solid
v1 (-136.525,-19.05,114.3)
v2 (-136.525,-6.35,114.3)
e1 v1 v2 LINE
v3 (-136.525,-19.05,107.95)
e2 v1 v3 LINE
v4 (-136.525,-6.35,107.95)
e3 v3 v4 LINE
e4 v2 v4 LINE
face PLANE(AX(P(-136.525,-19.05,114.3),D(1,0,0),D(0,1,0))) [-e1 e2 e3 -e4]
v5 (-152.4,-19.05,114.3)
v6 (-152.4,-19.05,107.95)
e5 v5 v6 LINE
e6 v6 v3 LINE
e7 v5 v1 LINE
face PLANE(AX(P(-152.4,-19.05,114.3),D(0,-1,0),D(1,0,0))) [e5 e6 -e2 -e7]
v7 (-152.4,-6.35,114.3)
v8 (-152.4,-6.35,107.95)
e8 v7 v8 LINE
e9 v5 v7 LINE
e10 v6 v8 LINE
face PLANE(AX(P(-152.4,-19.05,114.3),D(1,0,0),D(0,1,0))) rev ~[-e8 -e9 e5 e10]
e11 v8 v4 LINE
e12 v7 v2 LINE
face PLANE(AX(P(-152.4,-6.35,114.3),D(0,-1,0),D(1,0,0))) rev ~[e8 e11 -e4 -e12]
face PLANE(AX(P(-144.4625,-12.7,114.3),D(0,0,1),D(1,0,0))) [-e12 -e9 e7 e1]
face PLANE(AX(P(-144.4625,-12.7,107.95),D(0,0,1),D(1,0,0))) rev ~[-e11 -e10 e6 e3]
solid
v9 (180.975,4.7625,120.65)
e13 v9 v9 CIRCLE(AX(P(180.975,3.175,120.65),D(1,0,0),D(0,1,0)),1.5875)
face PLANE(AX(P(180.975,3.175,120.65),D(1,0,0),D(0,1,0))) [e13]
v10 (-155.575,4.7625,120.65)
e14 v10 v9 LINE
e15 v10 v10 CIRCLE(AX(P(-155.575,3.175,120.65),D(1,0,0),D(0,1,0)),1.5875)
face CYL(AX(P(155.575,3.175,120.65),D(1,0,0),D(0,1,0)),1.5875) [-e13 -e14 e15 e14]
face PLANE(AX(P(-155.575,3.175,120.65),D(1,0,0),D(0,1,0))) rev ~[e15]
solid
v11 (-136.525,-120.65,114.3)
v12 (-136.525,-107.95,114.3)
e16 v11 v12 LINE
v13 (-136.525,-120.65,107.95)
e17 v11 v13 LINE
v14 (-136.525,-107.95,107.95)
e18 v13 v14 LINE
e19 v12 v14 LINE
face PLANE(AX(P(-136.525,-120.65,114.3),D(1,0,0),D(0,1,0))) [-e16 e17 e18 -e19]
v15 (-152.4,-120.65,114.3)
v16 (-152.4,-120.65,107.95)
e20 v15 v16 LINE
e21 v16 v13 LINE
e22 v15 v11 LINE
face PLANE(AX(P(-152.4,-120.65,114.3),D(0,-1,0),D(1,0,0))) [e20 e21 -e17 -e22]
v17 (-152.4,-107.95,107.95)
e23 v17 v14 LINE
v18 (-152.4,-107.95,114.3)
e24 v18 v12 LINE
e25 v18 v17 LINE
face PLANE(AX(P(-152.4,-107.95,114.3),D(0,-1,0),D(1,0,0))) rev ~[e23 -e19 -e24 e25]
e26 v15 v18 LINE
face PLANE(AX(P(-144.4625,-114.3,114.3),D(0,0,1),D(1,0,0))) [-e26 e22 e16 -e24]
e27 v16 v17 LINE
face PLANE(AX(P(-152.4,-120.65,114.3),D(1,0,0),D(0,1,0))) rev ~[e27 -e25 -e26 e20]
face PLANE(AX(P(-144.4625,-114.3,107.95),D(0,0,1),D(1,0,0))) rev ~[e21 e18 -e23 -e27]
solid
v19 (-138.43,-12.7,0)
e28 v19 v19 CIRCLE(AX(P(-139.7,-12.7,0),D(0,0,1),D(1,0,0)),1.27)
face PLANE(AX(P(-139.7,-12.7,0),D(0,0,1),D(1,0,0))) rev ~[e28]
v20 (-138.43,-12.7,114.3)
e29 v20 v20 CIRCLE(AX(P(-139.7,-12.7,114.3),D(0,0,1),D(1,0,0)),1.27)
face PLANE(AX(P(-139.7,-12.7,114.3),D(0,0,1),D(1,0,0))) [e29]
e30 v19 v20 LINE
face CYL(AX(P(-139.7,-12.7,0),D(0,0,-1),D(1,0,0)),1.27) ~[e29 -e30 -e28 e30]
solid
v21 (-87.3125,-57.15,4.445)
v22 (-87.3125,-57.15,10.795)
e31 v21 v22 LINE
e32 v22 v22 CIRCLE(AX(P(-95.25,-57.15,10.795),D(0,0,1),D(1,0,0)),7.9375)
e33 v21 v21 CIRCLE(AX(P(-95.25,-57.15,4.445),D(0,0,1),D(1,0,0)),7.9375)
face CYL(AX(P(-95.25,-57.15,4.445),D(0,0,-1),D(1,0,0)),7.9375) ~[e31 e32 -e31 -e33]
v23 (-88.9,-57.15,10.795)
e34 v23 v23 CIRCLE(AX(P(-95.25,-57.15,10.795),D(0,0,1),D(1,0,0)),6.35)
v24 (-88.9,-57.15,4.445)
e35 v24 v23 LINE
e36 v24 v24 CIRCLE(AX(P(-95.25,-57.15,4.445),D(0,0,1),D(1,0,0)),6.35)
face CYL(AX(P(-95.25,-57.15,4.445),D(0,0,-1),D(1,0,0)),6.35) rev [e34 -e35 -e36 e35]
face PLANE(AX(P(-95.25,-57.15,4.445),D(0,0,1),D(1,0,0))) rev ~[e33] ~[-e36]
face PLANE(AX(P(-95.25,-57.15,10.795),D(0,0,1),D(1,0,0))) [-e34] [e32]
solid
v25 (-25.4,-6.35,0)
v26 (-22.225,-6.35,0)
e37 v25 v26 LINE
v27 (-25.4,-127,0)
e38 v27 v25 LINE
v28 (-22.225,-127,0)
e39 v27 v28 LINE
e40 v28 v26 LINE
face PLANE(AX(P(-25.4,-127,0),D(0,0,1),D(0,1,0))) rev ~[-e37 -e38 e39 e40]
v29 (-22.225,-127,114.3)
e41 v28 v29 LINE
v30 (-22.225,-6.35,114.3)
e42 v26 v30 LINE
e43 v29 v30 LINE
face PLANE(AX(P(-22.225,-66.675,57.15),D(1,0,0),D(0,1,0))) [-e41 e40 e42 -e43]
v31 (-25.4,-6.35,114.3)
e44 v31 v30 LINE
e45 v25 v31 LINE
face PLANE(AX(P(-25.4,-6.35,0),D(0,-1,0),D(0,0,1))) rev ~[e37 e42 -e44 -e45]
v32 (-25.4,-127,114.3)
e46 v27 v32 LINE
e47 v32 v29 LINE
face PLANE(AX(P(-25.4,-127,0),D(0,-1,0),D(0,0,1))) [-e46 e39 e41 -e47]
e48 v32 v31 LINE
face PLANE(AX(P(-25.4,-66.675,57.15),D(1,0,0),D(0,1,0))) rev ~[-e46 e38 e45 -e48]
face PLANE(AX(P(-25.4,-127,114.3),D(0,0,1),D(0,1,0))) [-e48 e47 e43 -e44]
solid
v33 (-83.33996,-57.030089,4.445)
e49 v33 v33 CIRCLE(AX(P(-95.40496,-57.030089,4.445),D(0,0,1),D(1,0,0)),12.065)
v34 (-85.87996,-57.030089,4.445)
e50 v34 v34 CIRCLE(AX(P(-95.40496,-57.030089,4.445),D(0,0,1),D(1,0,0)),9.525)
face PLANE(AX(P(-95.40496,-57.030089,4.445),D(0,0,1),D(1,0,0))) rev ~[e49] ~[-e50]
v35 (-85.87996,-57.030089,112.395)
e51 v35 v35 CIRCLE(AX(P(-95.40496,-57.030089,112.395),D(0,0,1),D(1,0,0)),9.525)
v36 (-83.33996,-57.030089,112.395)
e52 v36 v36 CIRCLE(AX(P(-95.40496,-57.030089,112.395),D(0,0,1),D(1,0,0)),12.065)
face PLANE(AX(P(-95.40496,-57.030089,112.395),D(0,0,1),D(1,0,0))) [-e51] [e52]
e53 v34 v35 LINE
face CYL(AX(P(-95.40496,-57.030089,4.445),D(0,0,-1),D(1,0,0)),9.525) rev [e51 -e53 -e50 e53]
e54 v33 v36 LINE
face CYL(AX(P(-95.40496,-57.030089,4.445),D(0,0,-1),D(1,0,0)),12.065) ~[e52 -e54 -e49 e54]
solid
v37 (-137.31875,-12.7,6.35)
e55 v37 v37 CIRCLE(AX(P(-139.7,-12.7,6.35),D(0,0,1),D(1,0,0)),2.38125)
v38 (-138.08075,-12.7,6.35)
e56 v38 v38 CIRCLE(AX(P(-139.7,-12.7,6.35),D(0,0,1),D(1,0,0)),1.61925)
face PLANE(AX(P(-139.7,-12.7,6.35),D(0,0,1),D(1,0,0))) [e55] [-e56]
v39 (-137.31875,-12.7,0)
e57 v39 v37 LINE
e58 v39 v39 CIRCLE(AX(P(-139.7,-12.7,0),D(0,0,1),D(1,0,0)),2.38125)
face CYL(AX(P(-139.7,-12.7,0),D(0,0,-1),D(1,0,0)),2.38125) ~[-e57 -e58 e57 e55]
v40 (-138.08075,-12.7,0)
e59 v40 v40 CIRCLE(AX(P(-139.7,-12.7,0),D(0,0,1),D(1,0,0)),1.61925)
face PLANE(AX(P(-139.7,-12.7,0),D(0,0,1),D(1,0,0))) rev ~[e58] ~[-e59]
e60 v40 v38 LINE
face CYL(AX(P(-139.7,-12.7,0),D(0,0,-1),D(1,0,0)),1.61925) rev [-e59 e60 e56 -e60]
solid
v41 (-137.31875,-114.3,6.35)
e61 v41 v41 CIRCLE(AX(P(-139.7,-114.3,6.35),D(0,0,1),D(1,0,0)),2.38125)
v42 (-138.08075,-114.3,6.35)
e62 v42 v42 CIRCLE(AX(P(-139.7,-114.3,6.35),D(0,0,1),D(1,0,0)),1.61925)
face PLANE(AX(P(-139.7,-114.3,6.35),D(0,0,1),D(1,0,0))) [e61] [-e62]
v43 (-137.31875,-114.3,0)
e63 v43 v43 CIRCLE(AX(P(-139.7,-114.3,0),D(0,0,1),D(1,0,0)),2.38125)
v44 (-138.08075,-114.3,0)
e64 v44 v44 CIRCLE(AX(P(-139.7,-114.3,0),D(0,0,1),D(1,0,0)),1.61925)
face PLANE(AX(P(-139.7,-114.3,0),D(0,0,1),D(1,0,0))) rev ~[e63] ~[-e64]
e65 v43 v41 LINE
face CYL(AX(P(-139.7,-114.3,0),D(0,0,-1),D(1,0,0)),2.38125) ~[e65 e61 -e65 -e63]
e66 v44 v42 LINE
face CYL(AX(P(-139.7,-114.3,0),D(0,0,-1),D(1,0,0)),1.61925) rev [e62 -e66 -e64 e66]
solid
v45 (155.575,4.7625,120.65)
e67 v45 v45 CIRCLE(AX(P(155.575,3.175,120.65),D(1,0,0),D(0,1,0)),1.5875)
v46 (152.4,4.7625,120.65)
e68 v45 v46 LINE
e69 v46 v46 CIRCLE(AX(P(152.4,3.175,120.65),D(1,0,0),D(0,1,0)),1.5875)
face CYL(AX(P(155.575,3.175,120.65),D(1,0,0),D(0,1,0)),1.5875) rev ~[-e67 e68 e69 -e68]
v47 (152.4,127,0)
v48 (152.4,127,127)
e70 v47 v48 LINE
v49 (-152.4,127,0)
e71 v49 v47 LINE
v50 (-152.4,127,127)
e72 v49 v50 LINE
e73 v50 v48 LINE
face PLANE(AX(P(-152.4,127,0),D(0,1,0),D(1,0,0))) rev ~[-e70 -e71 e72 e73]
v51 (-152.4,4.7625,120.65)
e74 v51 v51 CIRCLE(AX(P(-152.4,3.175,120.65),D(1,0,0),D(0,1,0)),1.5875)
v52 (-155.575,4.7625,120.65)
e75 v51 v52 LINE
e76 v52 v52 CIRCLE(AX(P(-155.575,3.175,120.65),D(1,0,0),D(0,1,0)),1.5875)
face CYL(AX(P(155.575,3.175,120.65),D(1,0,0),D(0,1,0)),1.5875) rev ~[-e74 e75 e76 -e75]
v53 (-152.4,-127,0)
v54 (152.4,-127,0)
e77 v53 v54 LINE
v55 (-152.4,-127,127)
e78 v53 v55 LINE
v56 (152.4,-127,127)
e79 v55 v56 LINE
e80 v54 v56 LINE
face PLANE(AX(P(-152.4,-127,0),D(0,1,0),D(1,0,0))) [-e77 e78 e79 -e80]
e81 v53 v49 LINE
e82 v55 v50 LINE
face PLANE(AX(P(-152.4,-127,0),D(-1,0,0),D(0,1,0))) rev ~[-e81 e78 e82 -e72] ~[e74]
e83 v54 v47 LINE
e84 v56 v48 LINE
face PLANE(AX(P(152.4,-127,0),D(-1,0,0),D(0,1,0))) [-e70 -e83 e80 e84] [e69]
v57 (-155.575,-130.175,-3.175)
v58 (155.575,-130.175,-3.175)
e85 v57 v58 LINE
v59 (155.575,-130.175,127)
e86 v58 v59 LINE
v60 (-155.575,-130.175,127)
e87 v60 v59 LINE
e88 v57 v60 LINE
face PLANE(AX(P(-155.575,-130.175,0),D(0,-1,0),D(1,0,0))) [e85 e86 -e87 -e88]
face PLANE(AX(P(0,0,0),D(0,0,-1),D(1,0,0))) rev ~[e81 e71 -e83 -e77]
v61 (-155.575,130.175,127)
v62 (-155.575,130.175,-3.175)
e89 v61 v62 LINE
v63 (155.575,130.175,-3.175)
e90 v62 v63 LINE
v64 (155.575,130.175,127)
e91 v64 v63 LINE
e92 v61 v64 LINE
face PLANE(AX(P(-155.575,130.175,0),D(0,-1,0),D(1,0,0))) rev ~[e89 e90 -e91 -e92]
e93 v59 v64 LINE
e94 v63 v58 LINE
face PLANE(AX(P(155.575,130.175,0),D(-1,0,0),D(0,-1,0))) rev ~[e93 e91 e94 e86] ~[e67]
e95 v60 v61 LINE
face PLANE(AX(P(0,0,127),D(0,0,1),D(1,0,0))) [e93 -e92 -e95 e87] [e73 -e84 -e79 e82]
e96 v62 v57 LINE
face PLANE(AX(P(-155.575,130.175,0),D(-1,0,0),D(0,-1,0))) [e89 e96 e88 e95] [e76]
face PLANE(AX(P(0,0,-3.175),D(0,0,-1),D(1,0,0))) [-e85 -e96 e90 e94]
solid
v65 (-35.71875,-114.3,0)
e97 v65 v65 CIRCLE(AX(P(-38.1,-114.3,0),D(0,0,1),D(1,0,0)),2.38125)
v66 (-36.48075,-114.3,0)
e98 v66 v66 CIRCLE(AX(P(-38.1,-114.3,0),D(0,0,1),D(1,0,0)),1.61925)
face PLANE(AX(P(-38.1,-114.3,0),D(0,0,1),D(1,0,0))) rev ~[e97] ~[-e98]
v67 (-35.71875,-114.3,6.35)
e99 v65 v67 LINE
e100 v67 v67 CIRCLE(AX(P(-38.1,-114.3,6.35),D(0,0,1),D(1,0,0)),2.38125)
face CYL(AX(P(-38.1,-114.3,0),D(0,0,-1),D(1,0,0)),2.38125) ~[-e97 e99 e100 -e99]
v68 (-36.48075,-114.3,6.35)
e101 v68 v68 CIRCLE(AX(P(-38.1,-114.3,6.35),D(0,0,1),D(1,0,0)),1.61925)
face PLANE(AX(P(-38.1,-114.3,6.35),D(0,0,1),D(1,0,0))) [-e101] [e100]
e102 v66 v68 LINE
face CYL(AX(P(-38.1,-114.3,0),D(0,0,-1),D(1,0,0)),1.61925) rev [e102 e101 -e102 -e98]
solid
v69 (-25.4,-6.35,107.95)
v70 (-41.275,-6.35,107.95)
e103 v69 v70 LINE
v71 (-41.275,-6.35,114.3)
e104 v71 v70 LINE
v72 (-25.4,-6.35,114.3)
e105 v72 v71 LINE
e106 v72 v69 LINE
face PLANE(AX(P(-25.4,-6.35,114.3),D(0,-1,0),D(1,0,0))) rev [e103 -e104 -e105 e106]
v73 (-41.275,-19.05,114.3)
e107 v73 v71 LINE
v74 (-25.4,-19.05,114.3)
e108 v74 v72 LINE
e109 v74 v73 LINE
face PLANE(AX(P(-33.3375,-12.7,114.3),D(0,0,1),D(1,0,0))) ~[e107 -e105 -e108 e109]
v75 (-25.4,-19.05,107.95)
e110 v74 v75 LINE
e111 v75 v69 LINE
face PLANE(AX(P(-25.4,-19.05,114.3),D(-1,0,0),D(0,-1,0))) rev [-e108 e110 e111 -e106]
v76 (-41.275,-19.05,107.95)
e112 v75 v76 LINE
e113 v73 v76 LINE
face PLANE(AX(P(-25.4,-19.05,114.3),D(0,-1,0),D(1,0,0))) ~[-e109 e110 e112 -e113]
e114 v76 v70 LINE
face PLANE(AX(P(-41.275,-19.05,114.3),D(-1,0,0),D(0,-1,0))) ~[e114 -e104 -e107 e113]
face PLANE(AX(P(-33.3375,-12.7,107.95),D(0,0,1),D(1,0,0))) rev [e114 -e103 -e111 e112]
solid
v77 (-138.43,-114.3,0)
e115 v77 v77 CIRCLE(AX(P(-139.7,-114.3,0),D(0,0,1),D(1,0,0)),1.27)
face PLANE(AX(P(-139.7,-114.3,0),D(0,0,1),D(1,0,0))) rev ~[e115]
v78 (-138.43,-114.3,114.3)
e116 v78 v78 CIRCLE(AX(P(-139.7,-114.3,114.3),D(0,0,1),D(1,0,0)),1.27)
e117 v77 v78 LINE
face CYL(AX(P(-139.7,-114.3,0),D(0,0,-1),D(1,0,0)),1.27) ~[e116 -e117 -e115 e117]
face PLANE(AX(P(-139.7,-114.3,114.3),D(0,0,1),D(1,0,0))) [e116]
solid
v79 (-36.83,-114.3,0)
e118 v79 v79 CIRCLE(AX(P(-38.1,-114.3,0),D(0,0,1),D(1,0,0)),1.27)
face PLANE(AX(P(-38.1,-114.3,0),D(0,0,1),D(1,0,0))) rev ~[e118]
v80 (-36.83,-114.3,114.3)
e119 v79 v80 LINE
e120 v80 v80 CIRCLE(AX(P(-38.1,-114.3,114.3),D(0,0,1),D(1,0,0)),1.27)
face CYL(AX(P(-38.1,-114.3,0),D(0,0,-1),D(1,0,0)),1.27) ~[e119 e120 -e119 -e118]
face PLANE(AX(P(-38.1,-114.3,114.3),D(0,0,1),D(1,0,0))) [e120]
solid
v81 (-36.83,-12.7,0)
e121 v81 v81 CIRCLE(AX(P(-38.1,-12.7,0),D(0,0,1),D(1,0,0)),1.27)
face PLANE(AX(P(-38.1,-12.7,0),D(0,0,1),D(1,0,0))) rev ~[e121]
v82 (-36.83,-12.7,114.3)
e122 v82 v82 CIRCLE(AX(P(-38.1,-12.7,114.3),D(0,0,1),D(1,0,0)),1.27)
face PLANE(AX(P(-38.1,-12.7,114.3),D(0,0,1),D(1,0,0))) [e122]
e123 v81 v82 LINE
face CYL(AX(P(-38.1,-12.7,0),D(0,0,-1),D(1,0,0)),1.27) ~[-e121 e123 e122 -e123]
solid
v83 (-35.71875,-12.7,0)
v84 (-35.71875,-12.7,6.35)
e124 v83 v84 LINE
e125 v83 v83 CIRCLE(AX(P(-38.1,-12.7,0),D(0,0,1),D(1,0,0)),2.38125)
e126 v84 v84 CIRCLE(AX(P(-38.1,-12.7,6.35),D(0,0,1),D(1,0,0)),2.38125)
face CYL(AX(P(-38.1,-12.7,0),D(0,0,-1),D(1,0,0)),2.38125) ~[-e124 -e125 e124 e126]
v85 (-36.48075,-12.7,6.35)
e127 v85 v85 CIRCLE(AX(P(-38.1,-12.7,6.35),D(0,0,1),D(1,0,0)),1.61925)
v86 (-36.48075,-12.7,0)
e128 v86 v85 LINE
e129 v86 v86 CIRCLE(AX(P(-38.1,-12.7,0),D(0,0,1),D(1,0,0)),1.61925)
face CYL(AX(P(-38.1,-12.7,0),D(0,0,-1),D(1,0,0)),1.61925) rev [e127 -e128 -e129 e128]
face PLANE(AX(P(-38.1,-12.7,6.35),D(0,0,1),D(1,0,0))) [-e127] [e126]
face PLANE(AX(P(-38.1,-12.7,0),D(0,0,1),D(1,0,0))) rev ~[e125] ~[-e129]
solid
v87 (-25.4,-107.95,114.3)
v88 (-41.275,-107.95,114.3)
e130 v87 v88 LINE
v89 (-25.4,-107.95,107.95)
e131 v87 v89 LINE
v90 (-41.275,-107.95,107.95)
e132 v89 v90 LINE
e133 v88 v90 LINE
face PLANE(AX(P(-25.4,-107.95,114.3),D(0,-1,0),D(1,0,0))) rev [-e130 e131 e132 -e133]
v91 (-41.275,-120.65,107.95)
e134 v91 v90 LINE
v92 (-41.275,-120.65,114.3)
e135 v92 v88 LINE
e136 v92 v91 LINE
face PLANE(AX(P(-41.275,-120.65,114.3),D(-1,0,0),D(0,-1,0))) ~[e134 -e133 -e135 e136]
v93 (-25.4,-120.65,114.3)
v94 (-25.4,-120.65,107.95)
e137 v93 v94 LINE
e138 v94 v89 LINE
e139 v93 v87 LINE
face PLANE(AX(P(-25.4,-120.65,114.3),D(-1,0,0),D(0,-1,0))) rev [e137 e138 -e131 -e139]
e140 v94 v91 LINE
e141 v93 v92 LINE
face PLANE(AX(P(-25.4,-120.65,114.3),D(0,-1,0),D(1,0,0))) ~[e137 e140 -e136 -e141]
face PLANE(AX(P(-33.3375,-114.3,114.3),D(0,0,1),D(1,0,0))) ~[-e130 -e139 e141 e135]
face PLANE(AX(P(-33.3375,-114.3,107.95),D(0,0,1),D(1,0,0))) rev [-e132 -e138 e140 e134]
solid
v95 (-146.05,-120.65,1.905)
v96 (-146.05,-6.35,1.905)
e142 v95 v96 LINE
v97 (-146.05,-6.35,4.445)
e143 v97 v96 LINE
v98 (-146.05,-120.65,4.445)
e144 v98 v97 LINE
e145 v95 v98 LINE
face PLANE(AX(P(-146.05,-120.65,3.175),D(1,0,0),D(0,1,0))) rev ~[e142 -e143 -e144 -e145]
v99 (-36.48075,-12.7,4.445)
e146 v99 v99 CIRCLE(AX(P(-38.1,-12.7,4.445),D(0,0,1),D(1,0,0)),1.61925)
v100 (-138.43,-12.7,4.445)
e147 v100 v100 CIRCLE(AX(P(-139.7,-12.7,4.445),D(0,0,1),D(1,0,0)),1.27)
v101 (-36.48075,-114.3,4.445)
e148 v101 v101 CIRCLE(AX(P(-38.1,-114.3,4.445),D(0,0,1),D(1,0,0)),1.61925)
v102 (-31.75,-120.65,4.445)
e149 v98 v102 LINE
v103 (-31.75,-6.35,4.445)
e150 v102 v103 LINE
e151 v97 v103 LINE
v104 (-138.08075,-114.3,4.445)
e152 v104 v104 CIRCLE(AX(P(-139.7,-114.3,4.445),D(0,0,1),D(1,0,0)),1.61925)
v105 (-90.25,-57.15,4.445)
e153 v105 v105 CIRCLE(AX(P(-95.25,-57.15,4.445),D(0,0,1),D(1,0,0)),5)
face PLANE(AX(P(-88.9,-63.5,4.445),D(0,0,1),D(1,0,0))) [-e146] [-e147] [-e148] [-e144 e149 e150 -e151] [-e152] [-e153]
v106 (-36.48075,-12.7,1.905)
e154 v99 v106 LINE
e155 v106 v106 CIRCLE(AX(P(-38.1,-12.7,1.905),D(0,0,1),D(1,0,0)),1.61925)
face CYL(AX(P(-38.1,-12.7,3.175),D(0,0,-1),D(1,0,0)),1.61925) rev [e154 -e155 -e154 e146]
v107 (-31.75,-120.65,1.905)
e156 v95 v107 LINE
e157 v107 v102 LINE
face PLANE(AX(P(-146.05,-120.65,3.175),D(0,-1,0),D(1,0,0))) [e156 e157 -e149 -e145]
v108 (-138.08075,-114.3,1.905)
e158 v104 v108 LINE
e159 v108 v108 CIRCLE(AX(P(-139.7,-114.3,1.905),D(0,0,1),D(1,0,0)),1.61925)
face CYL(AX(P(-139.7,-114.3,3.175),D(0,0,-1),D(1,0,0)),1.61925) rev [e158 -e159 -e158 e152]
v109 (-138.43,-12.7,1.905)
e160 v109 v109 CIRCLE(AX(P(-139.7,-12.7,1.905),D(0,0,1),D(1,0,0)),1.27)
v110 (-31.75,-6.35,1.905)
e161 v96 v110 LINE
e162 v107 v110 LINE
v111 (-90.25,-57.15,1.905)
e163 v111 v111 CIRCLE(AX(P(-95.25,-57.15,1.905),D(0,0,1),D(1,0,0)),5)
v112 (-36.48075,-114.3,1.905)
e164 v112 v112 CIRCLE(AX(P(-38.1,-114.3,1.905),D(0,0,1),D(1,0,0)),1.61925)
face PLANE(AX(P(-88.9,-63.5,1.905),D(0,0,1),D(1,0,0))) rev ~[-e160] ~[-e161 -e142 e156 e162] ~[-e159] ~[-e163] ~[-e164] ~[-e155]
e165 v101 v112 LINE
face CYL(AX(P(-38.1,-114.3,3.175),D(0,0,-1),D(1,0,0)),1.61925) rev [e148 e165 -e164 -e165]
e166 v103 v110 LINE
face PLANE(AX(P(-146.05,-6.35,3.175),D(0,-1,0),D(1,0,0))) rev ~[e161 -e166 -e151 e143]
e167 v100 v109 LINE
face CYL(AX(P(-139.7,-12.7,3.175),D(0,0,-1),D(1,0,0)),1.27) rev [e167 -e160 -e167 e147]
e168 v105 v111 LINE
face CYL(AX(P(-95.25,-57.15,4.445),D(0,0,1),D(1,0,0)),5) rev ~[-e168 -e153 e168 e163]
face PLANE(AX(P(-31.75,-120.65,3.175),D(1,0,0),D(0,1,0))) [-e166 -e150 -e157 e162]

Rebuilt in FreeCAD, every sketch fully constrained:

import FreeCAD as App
import Part
import Sketcher
from FreeCAD import Vector
Q = App.Units.Quantity

doc = App.newDocument("Part")
body = doc.addObject("PartDesign::Body", "Body")

# Sketch on XY plane
sketch1 = body.newObject("Sketcher::SketchObject", "Sketch")
sketch1.AttachmentSupport = (doc.getObject("XY_Plane"), [""])
sketch1.MapMode = "FlatFace"
sketch1.addGeometry(Part.LineSegment(Vector(-155.575, 130.175, 0), Vector(-155.575, -130.175, 0)), False)
sketch1.addGeometry(Part.LineSegment(Vector(-155.575, -130.175, 0), Vector(155.575, -130.175, 0)), False)
sketch1.addGeometry(Part.LineSegment(Vector(155.575, -130.175, 0), Vector(155.575, 130.175, 0)), False)
sketch1.addGeometry(Part.LineSegment(Vector(155.575, 130.175, 0), Vector(-155.575, 130.175, 0)), False)
sketch1.addGeometry(Part.LineSegment(Vector(152.4, -127, 0), Vector(-152.4, -127, 0)), False)
sketch1.addGeometry(Part.LineSegment(Vector(-152.4, -127, 0), Vector(-152.4, 127, 0)), False)
sketch1.addGeometry(Part.LineSegment(Vector(-152.4, 127, 0), Vector(152.4, 127, 0)), False)
sketch1.addGeometry(Part.LineSegment(Vector(152.4, 127, 0), Vector(152.4, -127, 0)), False)
sketch1.addConstraint(Sketcher.Constraint("Coincident", 0, 2, 1, 1))
sketch1.addConstraint(Sketcher.Constraint("Coincident", 1, 2, 2, 1))
sketch1.addConstraint(Sketcher.Constraint("Coincident", 2, 2, 3, 1))
sketch1.addConstraint(Sketcher.Constraint("Coincident", 3, 2, 0, 1))
sketch1.addConstraint(Sketcher.Constraint("Coincident", 4, 2, 5, 1))
sketch1.addConstraint(Sketcher.Constraint("Coincident", 5, 2, 6, 1))
sketch1.addConstraint(Sketcher.Constraint("Coincident", 6, 2, 7, 1))
sketch1.addConstraint(Sketcher.Constraint("Coincident", 7, 2, 4, 1))
sketch1.addConstraint(Sketcher.Constraint("Vertical", 0))
sketch1.addConstraint(Sketcher.Constraint("Horizontal", 1))
sketch1.addConstraint(Sketcher.Constraint("Vertical", 2))
sketch1.addConstraint(Sketcher.Constraint("Horizontal", 3))
sketch1.addConstraint(Sketcher.Constraint("Horizontal", 4))
sketch1.addConstraint(Sketcher.Constraint("Vertical", 5))
sketch1.addConstraint(Sketcher.Constraint("Horizontal", 6))
sketch1.addConstraint(Sketcher.Constraint("Vertical", 7))
sketch1.addConstraint(Sketcher.Constraint("Symmetric", 0, 2, 2, 2, -1, 1))
sketch1.addConstraint(Sketcher.Constraint("Symmetric", 4, 2, 6, 2, -1, 1))
sketch1.addConstraint(Sketcher.Constraint("DistanceX", 4, 2, 4, 1, Q("12 in")))
sketch1.addConstraint(Sketcher.Constraint("DistanceY", 5, 1, 5, 2, Q("10 in")))
sketch1.addConstraint(Sketcher.Constraint("DistanceX", 1, 1, 1, 2, Q("12.25 in")))
sketch1.addConstraint(Sketcher.Constraint("DistanceY", 0, 2, 0, 1, Q("10.25 in")))
pad1 = body.newObject("PartDesign::Pad", "Pad")
pad1.Profile = sketch1
pad1.Length = Q("5 in")

# Sketch on XY plane
sketch2 = body.newObject("Sketcher::SketchObject", "Sketch001")
sketch2.AttachmentSupport = (doc.getObject("XY_Plane"), [""])
sketch2.MapMode = "FlatFace"
sketch2.addGeometry(Part.LineSegment(Vector(-155.575, -130.175, 0), Vector(-155.575, 130.175, 0)), False)
sketch2.addGeometry(Part.LineSegment(Vector(-155.575, 130.175, 0), Vector(155.575, 130.175, 0)), False)
sketch2.addGeometry(Part.LineSegment(Vector(155.575, 130.175, 0), Vector(155.575, -130.175, 0)), False)
sketch2.addGeometry(Part.LineSegment(Vector(155.575, -130.175, 0), Vector(-155.575, -130.175, 0)), False)
sketch2.addConstraint(Sketcher.Constraint("Coincident", 0, 2, 1, 1))
sketch2.addConstraint(Sketcher.Constraint("Coincident", 1, 2, 2, 1))
sketch2.addConstraint(Sketcher.Constraint("Coincident", 2, 2, 3, 1))
sketch2.addConstraint(Sketcher.Constraint("Coincident", 3, 2, 0, 1))
sketch2.addConstraint(Sketcher.Constraint("Vertical", 0))
sketch2.addConstraint(Sketcher.Constraint("Horizontal", 1))
sketch2.addConstraint(Sketcher.Constraint("Vertical", 2))
sketch2.addConstraint(Sketcher.Constraint("Horizontal", 3))
sketch2.addConstraint(Sketcher.Constraint("Symmetric", 0, 2, 2, 2, -1, 1))
sketch2.addConstraint(Sketcher.Constraint("DistanceX", 1, 1, 1, 2, Q("12.25 in")))
sketch2.addConstraint(Sketcher.Constraint("DistanceY", 0, 1, 0, 2, Q("10.25 in")))
pad2 = body.newObject("PartDesign::Pad", "Pad001")
pad2.Profile = sketch2
pad2.Length = Q("0.125 in")
pad2.Reversed = True

# Sketch on YZ plane
sketch3 = body.newObject("Sketcher::SketchObject", "Sketch002")
sketch3.AttachmentSupport = (doc.getObject("YZ_Plane"), [""])
sketch3.MapMode = "FlatFace"
sketch3.AttachmentOffset = App.Placement(Vector(0, 0, 6.125 * 25.4), App.Rotation())
sketch3.addGeometry(Part.Circle(Vector(3.175, 120.65, 0), Vector(0, 0, 1), 1.5875), False)
sketch3.addConstraint(Sketcher.Constraint("Diameter", 0, Q("0.125 in")))
sketch3.addConstraint(Sketcher.Constraint("DistanceY", -1, 1, 0, 3, Q("4.75 in")))
sketch3.addConstraint(Sketcher.Constraint("DistanceX", -1, 1, 0, 3, Q("0.125 in")))
pocket1 = body.newObject("PartDesign::Pocket", "Pocket")
pocket1.Profile = sketch3
pocket1.Type = "ThroughAll"
body2 = doc.addObject("PartDesign::Body", "Body001")

# Sketch on XY plane
sketch4 = body2.newObject("Sketcher::SketchObject", "Sketch003")
sketch4.AttachmentSupport = (doc.getObject("XY_Plane001"), [""])
sketch4.MapMode = "FlatFace"
sketch4.addGeometry(Part.Circle(Vector(-139.7, -114.3, 0), Vector(0, 0, 1), 1.27), False)
sketch4.addConstraint(Sketcher.Constraint("Diameter", 0, Q("0.1 in")))
sketch4.addConstraint(Sketcher.Constraint("DistanceX", 0, 3, -1, 1, Q("5.5 in")))
sketch4.addConstraint(Sketcher.Constraint("DistanceY", 0, 3, -1, 1, Q("4.5 in")))
pad3 = body2.newObject("PartDesign::Pad", "Pad002")
pad3.Profile = sketch4
pad3.Length = Q("4.5 in")
body3 = doc.addObject("PartDesign::Body", "Body002")

# Sketch on XY plane
sketch5 = body3.newObject("Sketcher::SketchObject", "Sketch004")
sketch5.AttachmentSupport = (doc.getObject("XY_Plane002"), [""])
sketch5.MapMode = "FlatFace"
sketch5.addGeometry(Part.Circle(Vector(-38.1, -114.3, 0), Vector(0, 0, 1), 1.27), False)
sketch5.addConstraint(Sketcher.Constraint("Diameter", 0, Q("0.1 in")))
sketch5.addConstraint(Sketcher.Constraint("DistanceX", 0, 3, -1, 1, Q("1.5 in")))
sketch5.addConstraint(Sketcher.Constraint("DistanceY", 0, 3, -1, 1, Q("4.5 in")))
pad4 = body3.newObject("PartDesign::Pad", "Pad003")
pad4.Profile = sketch5
pad4.Length = Q("4.5 in")
body4 = doc.addObject("PartDesign::Body", "Body003")

# Sketch on XY plane
sketch6 = body4.newObject("Sketcher::SketchObject", "Sketch005")
sketch6.AttachmentSupport = (doc.getObject("XY_Plane003"), [""])
sketch6.MapMode = "FlatFace"
sketch6.addGeometry(Part.Circle(Vector(-139.7, -12.7, 0), Vector(0, 0, 1), 1.27), False)
sketch6.addConstraint(Sketcher.Constraint("Diameter", 0, Q("0.1 in")))
sketch6.addConstraint(Sketcher.Constraint("DistanceX", 0, 3, -1, 1, Q("5.5 in")))
sketch6.addConstraint(Sketcher.Constraint("DistanceY", 0, 3, -1, 1, Q("0.5 in")))
pad5 = body4.newObject("PartDesign::Pad", "Pad004")
pad5.Profile = sketch6
pad5.Length = Q("4.5 in")
body5 = doc.addObject("PartDesign::Body", "Body004")

# Sketch on XY plane
sketch7 = body5.newObject("Sketcher::SketchObject", "Sketch006")
sketch7.AttachmentSupport = (doc.getObject("XY_Plane004"), [""])
sketch7.MapMode = "FlatFace"
sketch7.addGeometry(Part.Circle(Vector(-38.1, -12.7, 0), Vector(0, 0, 1), 1.27), False)
sketch7.addConstraint(Sketcher.Constraint("Diameter", 0, Q("0.1 in")))
sketch7.addConstraint(Sketcher.Constraint("DistanceX", 0, 3, -1, 1, Q("1.5 in")))
sketch7.addConstraint(Sketcher.Constraint("DistanceY", 0, 3, -1, 1, Q("0.5 in")))
pad6 = body5.newObject("PartDesign::Pad", "Pad005")
pad6.Profile = sketch7
pad6.Length = Q("4.5 in")
body6 = doc.addObject("PartDesign::Body", "Body005")

# Sketch on XY plane
sketch8 = body6.newObject("Sketcher::SketchObject", "Sketch007")
sketch8.AttachmentSupport = (doc.getObject("XY_Plane005"), [""])
sketch8.MapMode = "FlatFace"
sketch8.AttachmentOffset = App.Placement(Vector(0, 0, 4.5 * 25.4), App.Rotation())
sketch8.addGeometry(Part.LineSegment(Vector(-152.4, -6.35, 0), Vector(-152.4, -19.05, 0)), False)
sketch8.addGeometry(Part.LineSegment(Vector(-152.4, -19.05, 0), Vector(-136.525, -19.05, 0)), False)
sketch8.addGeometry(Part.LineSegment(Vector(-136.525, -19.05, 0), Vector(-136.525, -6.35, 0)), False)
sketch8.addGeometry(Part.LineSegment(Vector(-136.525, -6.35, 0), Vector(-152.4, -6.35, 0)), False)
sketch8.addConstraint(Sketcher.Constraint("Coincident", 0, 2, 1, 1))
sketch8.addConstraint(Sketcher.Constraint("Coincident", 1, 2, 2, 1))
sketch8.addConstraint(Sketcher.Constraint("Coincident", 2, 2, 3, 1))
sketch8.addConstraint(Sketcher.Constraint("Coincident", 3, 2, 0, 1))
sketch8.addConstraint(Sketcher.Constraint("Vertical", 0))
sketch8.addConstraint(Sketcher.Constraint("Horizontal", 1))
sketch8.addConstraint(Sketcher.Constraint("Vertical", 2))
sketch8.addConstraint(Sketcher.Constraint("Horizontal", 3))
sketch8.addConstraint(Sketcher.Constraint("DistanceY", 0, 2, 0, 1, Q("0.5 in")))
sketch8.addConstraint(Sketcher.Constraint("DistanceX", 0, 2, -1, 1, Q("6 in")))
sketch8.addConstraint(Sketcher.Constraint("DistanceX", 1, 1, 1, 2, Q("0.625 in")))
sketch8.addConstraint(Sketcher.Constraint("DistanceY", 0, 2, -1, 1, Q("0.75 in")))
pad7 = body6.newObject("PartDesign::Pad", "Pad006")
pad7.Profile = sketch8
pad7.Length = Q("0.25 in")
pad7.Reversed = True
body7 = doc.addObject("PartDesign::Body", "Body006")

# Sketch on XY plane
sketch9 = body7.newObject("Sketcher::SketchObject", "Sketch008")
sketch9.AttachmentSupport = (doc.getObject("XY_Plane006"), [""])
sketch9.MapMode = "FlatFace"
sketch9.AttachmentOffset = App.Placement(Vector(0, 0, 4.5 * 25.4), App.Rotation())
sketch9.addGeometry(Part.LineSegment(Vector(-152.4, -107.95, 0), Vector(-152.4, -120.65, 0)), False)
sketch9.addGeometry(Part.LineSegment(Vector(-152.4, -120.65, 0), Vector(-136.525, -120.65, 0)), False)
sketch9.addGeometry(Part.LineSegment(Vector(-136.525, -120.65, 0), Vector(-136.525, -107.95, 0)), False)
sketch9.addGeometry(Part.LineSegment(Vector(-136.525, -107.95, 0), Vector(-152.4, -107.95, 0)), False)
sketch9.addConstraint(Sketcher.Constraint("Coincident", 0, 2, 1, 1))
sketch9.addConstraint(Sketcher.Constraint("Coincident", 1, 2, 2, 1))
sketch9.addConstraint(Sketcher.Constraint("Coincident", 2, 2, 3, 1))
sketch9.addConstraint(Sketcher.Constraint("Coincident", 3, 2, 0, 1))
sketch9.addConstraint(Sketcher.Constraint("Vertical", 0))
sketch9.addConstraint(Sketcher.Constraint("Horizontal", 1))
sketch9.addConstraint(Sketcher.Constraint("Vertical", 2))
sketch9.addConstraint(Sketcher.Constraint("Horizontal", 3))
sketch9.addConstraint(Sketcher.Constraint("DistanceY", 0, 2, 0, 1, Q("0.5 in")))
sketch9.addConstraint(Sketcher.Constraint("DistanceX", 0, 2, -1, 1, Q("6 in")))
sketch9.addConstraint(Sketcher.Constraint("DistanceX", 1, 1, 1, 2, Q("0.625 in")))
sketch9.addConstraint(Sketcher.Constraint("DistanceY", 0, 2, -1, 1, Q("4.75 in")))
pad8 = body7.newObject("PartDesign::Pad", "Pad007")
pad8.Profile = sketch9
pad8.Length = Q("0.25 in")
pad8.Reversed = True
body8 = doc.addObject("PartDesign::Body", "Body007")
doc.recompute()

mirroring = doc.addObject("Part::Mirroring", "Mirroring")
mirroring.Source = body6
mirroring.Base = Vector(-88.9, -114.3, 114.3)
mirroring.Normal = Vector(1, 0, 0)
body8.BaseFeature = mirroring
doc.recompute()
body9 = doc.addObject("PartDesign::Body", "Body008")
doc.recompute()

mirroring2 = doc.addObject("Part::Mirroring", "Mirroring001")
mirroring2.Source = body7
mirroring2.Base = Vector(-88.9, -114.3, 114.3)
mirroring2.Normal = Vector(1, 0, 0)
body9.BaseFeature = mirroring2
doc.recompute()
body10 = doc.addObject("PartDesign::Body", "Body009")

# Sketch on YZ plane
sketch10 = body10.newObject("Sketcher::SketchObject", "Sketch009")
sketch10.AttachmentSupport = (doc.getObject("YZ_Plane009"), [""])
sketch10.MapMode = "FlatFace"
sketch10.AttachmentOffset = App.Placement(Vector(0, 0, -1 * 25.4), App.Rotation())
sketch10.addGeometry(Part.LineSegment(Vector(-127, 114.3, 0), Vector(-127, 0, 0)), False)
sketch10.addGeometry(Part.LineSegment(Vector(-127, 0, 0), Vector(-6.35, 0, 0)), False)
sketch10.addGeometry(Part.LineSegment(Vector(-6.35, 0, 0), Vector(-6.35, 114.3, 0)), False)
sketch10.addGeometry(Part.LineSegment(Vector(-6.35, 114.3, 0), Vector(-127, 114.3, 0)), False)
sketch10.addConstraint(Sketcher.Constraint("Coincident", 0, 2, 1, 1))
sketch10.addConstraint(Sketcher.Constraint("Coincident", 1, 2, 2, 1))
sketch10.addConstraint(Sketcher.Constraint("Coincident", 2, 2, 3, 1))
sketch10.addConstraint(Sketcher.Constraint("Coincident", 3, 2, 0, 1))
sketch10.addConstraint(Sketcher.Constraint("Vertical", 0))
sketch10.addConstraint(Sketcher.Constraint("Horizontal", 1))
sketch10.addConstraint(Sketcher.Constraint("Vertical", 2))
sketch10.addConstraint(Sketcher.Constraint("Horizontal", 3))
sketch10.addConstraint(Sketcher.Constraint("PointOnObject", 0, 2, -1))
sketch10.addConstraint(Sketcher.Constraint("DistanceY", 0, 2, 0, 1, Q("4.5 in")))
sketch10.addConstraint(Sketcher.Constraint("DistanceX", 0, 2, -1, 1, Q("5 in")))
sketch10.addConstraint(Sketcher.Constraint("DistanceX", 1, 1, 1, 2, Q("4.75 in")))
pad9 = body10.newObject("PartDesign::Pad", "Pad008")
pad9.Profile = sketch10
pad9.Length = Q("0.125 in")
body11 = doc.addObject("PartDesign::Body", "Body010")

# Sketch on XY plane
sketch11 = body11.newObject("Sketcher::SketchObject", "Sketch010")
sketch11.AttachmentSupport = (doc.getObject("XY_Plane010"), [""])
sketch11.MapMode = "FlatFace"
sketch11.addGeometry(Part.Circle(Vector(-139.7, -12.7, 0), Vector(0, 0, 1), 2.38125), False)
sketch11.addGeometry(Part.Circle(Vector(-139.7, -12.7, 0), Vector(0, 0, 1), 1.61925), False)
sketch11.addConstraint(Sketcher.Constraint("Coincident", 1, 3, 0, 3))
sketch11.addConstraint(Sketcher.Constraint("Diameter", 0, Q("0.1875 in")))
sketch11.addConstraint(Sketcher.Constraint("Diameter", 1, Q("0.1275 in")))
sketch11.addConstraint(Sketcher.Constraint("DistanceX", 0, 3, -1, 1, Q("5.5 in")))
sketch11.addConstraint(Sketcher.Constraint("DistanceY", 0, 3, -1, 1, Q("0.5 in")))
pad10 = body11.newObject("PartDesign::Pad", "Pad009")
pad10.Profile = sketch11
pad10.Length = Q("0.25 in")
body12 = doc.addObject("PartDesign::Body", "Body011")

# Sketch on XY plane
sketch12 = body12.newObject("Sketcher::SketchObject", "Sketch011")
sketch12.AttachmentSupport = (doc.getObject("XY_Plane011"), [""])
sketch12.MapMode = "FlatFace"
sketch12.addGeometry(Part.Circle(Vector(-38.1, -12.7, 0), Vector(0, 0, 1), 2.38125), False)
sketch12.addGeometry(Part.Circle(Vector(-38.1, -12.7, 0), Vector(0, 0, 1), 1.61925), False)
sketch12.addConstraint(Sketcher.Constraint("Coincident", 1, 3, 0, 3))
sketch12.addConstraint(Sketcher.Constraint("Diameter", 0, Q("0.1875 in")))
sketch12.addConstraint(Sketcher.Constraint("Diameter", 1, Q("0.1275 in")))
sketch12.addConstraint(Sketcher.Constraint("DistanceX", 0, 3, -1, 1, Q("1.5 in")))
sketch12.addConstraint(Sketcher.Constraint("DistanceY", 0, 3, -1, 1, Q("0.5 in")))
pad11 = body12.newObject("PartDesign::Pad", "Pad010")
pad11.Profile = sketch12
pad11.Length = Q("0.25 in")
body13 = doc.addObject("PartDesign::Body", "Body012")

# Sketch on XY plane
sketch13 = body13.newObject("Sketcher::SketchObject", "Sketch012")
sketch13.AttachmentSupport = (doc.getObject("XY_Plane012"), [""])
sketch13.MapMode = "FlatFace"
sketch13.addGeometry(Part.Circle(Vector(-139.7, -114.3, 0), Vector(0, 0, 1), 2.38125), False)
sketch13.addGeometry(Part.Circle(Vector(-139.7, -114.3, 0), Vector(0, 0, 1), 1.61925), False)
sketch13.addConstraint(Sketcher.Constraint("Coincident", 1, 3, 0, 3))
sketch13.addConstraint(Sketcher.Constraint("Diameter", 0, Q("0.1875 in")))
sketch13.addConstraint(Sketcher.Constraint("Diameter", 1, Q("0.1275 in")))
sketch13.addConstraint(Sketcher.Constraint("DistanceX", 0, 3, -1, 1, Q("5.5 in")))
sketch13.addConstraint(Sketcher.Constraint("DistanceY", 0, 3, -1, 1, Q("4.5 in")))
pad12 = body13.newObject("PartDesign::Pad", "Pad011")
pad12.Profile = sketch13
pad12.Length = Q("0.25 in")
body14 = doc.addObject("PartDesign::Body", "Body013")

# Sketch on XY plane
sketch14 = body14.newObject("Sketcher::SketchObject", "Sketch013")
sketch14.AttachmentSupport = (doc.getObject("XY_Plane013"), [""])
sketch14.MapMode = "FlatFace"
sketch14.addGeometry(Part.Circle(Vector(-38.1, -114.3, 0), Vector(0, 0, 1), 2.38125), False)
sketch14.addGeometry(Part.Circle(Vector(-38.1, -114.3, 0), Vector(0, 0, 1), 1.61925), False)
sketch14.addConstraint(Sketcher.Constraint("Coincident", 1, 3, 0, 3))
sketch14.addConstraint(Sketcher.Constraint("Diameter", 0, Q("0.1875 in")))
sketch14.addConstraint(Sketcher.Constraint("Diameter", 1, Q("0.1275 in")))
sketch14.addConstraint(Sketcher.Constraint("DistanceX", 0, 3, -1, 1, Q("1.5 in")))
sketch14.addConstraint(Sketcher.Constraint("DistanceY", 0, 3, -1, 1, Q("4.5 in")))
pad13 = body14.newObject("PartDesign::Pad", "Pad012")
pad13.Profile = sketch14
pad13.Length = Q("0.25 in")
body15 = doc.addObject("PartDesign::Body", "Body014")

# Sketch on XY plane
sketch15 = body15.newObject("Sketcher::SketchObject", "Sketch014")
sketch15.AttachmentSupport = (doc.getObject("XY_Plane014"), [""])
sketch15.MapMode = "FlatFace"
sketch15.AttachmentOffset = App.Placement(Vector(0, 0, 0.125 * 25.4), App.Rotation())
sketch15.addGeometry(Part.LineSegment(Vector(-146.05, -6.35, 0), Vector(-146.05, -120.65, 0)), False)
sketch15.addGeometry(Part.LineSegment(Vector(-146.05, -120.65, 0), Vector(-31.75, -120.65, 0)), False)
sketch15.addGeometry(Part.LineSegment(Vector(-31.75, -120.65, 0), Vector(-31.75, -6.35, 0)), False)
sketch15.addGeometry(Part.LineSegment(Vector(-31.75, -6.35, 0), Vector(-146.05, -6.35, 0)), False)
sketch15.addGeometry(Part.Circle(Vector(-139.7, -114.3, 0), Vector(0, 0, 1), 1.61925), False)
sketch15.addGeometry(Part.Circle(Vector(-38.1, -114.3, 0), Vector(0, 0, 1), 1.61925), False)
sketch15.addGeometry(Part.Circle(Vector(-139.7, -12.7, 0), Vector(0, 0, 1), 1.27), False)
sketch15.addGeometry(Part.Circle(Vector(-38.1, -12.7, 0), Vector(0, 0, 1), 1.61925), False)
sketch15.addConstraint(Sketcher.Constraint("Coincident", 0, 2, 1, 1))
sketch15.addConstraint(Sketcher.Constraint("Coincident", 1, 2, 2, 1))
sketch15.addConstraint(Sketcher.Constraint("Coincident", 2, 2, 3, 1))
sketch15.addConstraint(Sketcher.Constraint("Coincident", 3, 2, 0, 1))
sketch15.addConstraint(Sketcher.Constraint("Vertical", 0))
sketch15.addConstraint(Sketcher.Constraint("Horizontal", 1))
sketch15.addConstraint(Sketcher.Constraint("Vertical", 2))
sketch15.addConstraint(Sketcher.Constraint("Horizontal", 3))
sketch15.addConstraint(Sketcher.Constraint("Equal", 4, 5))
sketch15.addConstraint(Sketcher.Constraint("Equal", 5, 7))
sketch15.addConstraint(Sketcher.Constraint("Horizontal", 4, 3, 5, 3))
sketch15.addConstraint(Sketcher.Constraint("Horizontal", 6, 3, 7, 3))
sketch15.addConstraint(Sketcher.Constraint("Vertical", 4, 3, 6, 3))
sketch15.addConstraint(Sketcher.Constraint("Vertical", 5, 3, 7, 3))
sketch15.addConstraint(Sketcher.Constraint("Equal", 3, 0))
sketch15.addConstraint(Sketcher.Constraint("Diameter", 6, Q("0.1 in")))
sketch15.addConstraint(Sketcher.Constraint("DistanceX", 1, 1, 1, 2, Q("4.5 in")))
sketch15.addConstraint(Sketcher.Constraint("DistanceX", 4, 3, 5, 3, Q("4 in")))
sketch15.addConstraint(Sketcher.Constraint("DistanceY", 4, 3, 6, 3, Q("4 in")))
sketch15.addConstraint(Sketcher.Constraint("Diameter", 4, Q("0.1275 in")))
sketch15.addConstraint(Sketcher.Constraint("DistanceX", 4, 3, -1, 1, Q("5.5 in")))
sketch15.addConstraint(Sketcher.Constraint("DistanceY", 4, 3, -1, 1, Q("4.5 in")))
sketch15.addConstraint(Sketcher.Constraint("DistanceX", 0, 2, -1, 1, Q("5.75 in")))
sketch15.addConstraint(Sketcher.Constraint("DistanceY", 0, 2, -1, 1, Q("4.75 in")))
pad14 = body15.newObject("PartDesign::Pad", "Pad013")
pad14.Profile = sketch15
pad14.Length = Q("0.1 in")
pad14.Midplane = True

# Sketch on XY plane
sketch16 = body15.newObject("Sketcher::SketchObject", "Sketch015")
sketch16.AttachmentSupport = (doc.getObject("XY_Plane014"), [""])
sketch16.MapMode = "FlatFace"
sketch16.AttachmentOffset = App.Placement(Vector(0, 0, 0.175 * 25.4), App.Rotation())
sketch16.addGeometry(Part.Circle(Vector(-95.25, -57.15, 0), Vector(0, 0, 1), 5), False)
sketch16.addConstraint(Sketcher.Constraint("Diameter", 0, Q("10 mm")))
sketch16.addConstraint(Sketcher.Constraint("DistanceX", 0, 3, -1, 1, Q("3.75 in")))
sketch16.addConstraint(Sketcher.Constraint("DistanceY", 0, 3, -1, 1, Q("2.25 in")))
pocket2 = body15.newObject("PartDesign::Pocket", "Pocket001")
pocket2.Profile = sketch16
pocket2.Type = "ThroughAll"
body16 = doc.addObject("PartDesign::Body", "Body015")

# Sketch on YZ plane
sketch17 = body16.newObject("Sketcher::SketchObject", "Sketch016")
sketch17.AttachmentSupport = (doc.getObject("YZ_Plane015"), [""])
sketch17.MapMode = "FlatFace"
sketch17.AttachmentOffset = App.Placement(Vector(0, 0, 6.125 * 25.4), App.Rotation())
sketch17.addGeometry(Part.Circle(Vector(3.175, 120.65, 0), Vector(0, 0, 1), 1.5875), False)
sketch17.addConstraint(Sketcher.Constraint("Diameter", 0, Q("0.125 in")))
sketch17.addConstraint(Sketcher.Constraint("DistanceY", -1, 1, 0, 3, Q("4.75 in")))
sketch17.addConstraint(Sketcher.Constraint("DistanceX", -1, 1, 0, 3, Q("0.125 in")))
pad15 = body16.newObject("PartDesign::Pad", "Pad014")
pad15.Profile = sketch17
pad15.Type = "TwoLengths"
pad15.Length = Q("1 in")
pad15.Length2 = Q("12.25 in")
body17 = doc.addObject("PartDesign::Body", "Body016")

# Sketch on XY plane
sketch18 = body17.newObject("Sketcher::SketchObject", "Sketch017")
sketch18.AttachmentSupport = (doc.getObject("XY_Plane016"), [""])
sketch18.MapMode = "FlatFace"
sketch18.AttachmentOffset = App.Placement(Vector(0, 0, 0.175 * 25.4), App.Rotation())
sketch18.addGeometry(Part.Circle(Vector(-95.25, -57.15, 0), Vector(0, 0, 1), 7.9375), False)
sketch18.addGeometry(Part.Circle(Vector(-95.25, -57.15, 0), Vector(0, 0, 1), 6.35), False)
sketch18.addConstraint(Sketcher.Constraint("Coincident", 1, 3, 0, 3))
sketch18.addConstraint(Sketcher.Constraint("Diameter", 1, Q("0.5 in")))
sketch18.addConstraint(Sketcher.Constraint("Diameter", 0, Q("0.625 in")))
sketch18.addConstraint(Sketcher.Constraint("DistanceX", 0, 3, -1, 1, Q("3.75 in")))
sketch18.addConstraint(Sketcher.Constraint("DistanceY", 0, 3, -1, 1, Q("2.25 in")))
pad16 = body17.newObject("PartDesign::Pad", "Pad015")
pad16.Profile = sketch18
pad16.Length = Q("0.25 in")
body18 = doc.addObject("PartDesign::Body", "Body017")

# Sketch on XY plane
sketch19 = body18.newObject("Sketcher::SketchObject", "Sketch018")
sketch19.AttachmentSupport = (doc.getObject("XY_Plane017"), [""])
sketch19.MapMode = "FlatFace"
sketch19.AttachmentOffset = App.Placement(Vector(0, 0, 0.175 * 25.4), App.Rotation())
sketch19.addGeometry(Part.Circle(Vector(-95.40496, -57.030089, 0), Vector(0, 0, 1), 12.065), False)
sketch19.addGeometry(Part.Circle(Vector(-95.40496, -57.030089, 0), Vector(0, 0, 1), 9.525), False)
sketch19.addConstraint(Sketcher.Constraint("Coincident", 1, 3, 0, 3))
sketch19.addConstraint(Sketcher.Constraint("Diameter", 0, Q("0.95 in")))
sketch19.addConstraint(Sketcher.Constraint("Diameter", 1, Q("0.75 in")))
sketch19.addConstraint(Sketcher.Constraint("DistanceX", 0, 3, -1, 1, Q("95.40496 mm")))
sketch19.addConstraint(Sketcher.Constraint("DistanceY", 0, 3, -1, 1, Q("57.030089 mm")))
pad17 = body18.newObject("PartDesign::Pad", "Pad016")
pad17.Profile = sketch19
pad17.Length = Q("4.25 in")

doc.recompute()
